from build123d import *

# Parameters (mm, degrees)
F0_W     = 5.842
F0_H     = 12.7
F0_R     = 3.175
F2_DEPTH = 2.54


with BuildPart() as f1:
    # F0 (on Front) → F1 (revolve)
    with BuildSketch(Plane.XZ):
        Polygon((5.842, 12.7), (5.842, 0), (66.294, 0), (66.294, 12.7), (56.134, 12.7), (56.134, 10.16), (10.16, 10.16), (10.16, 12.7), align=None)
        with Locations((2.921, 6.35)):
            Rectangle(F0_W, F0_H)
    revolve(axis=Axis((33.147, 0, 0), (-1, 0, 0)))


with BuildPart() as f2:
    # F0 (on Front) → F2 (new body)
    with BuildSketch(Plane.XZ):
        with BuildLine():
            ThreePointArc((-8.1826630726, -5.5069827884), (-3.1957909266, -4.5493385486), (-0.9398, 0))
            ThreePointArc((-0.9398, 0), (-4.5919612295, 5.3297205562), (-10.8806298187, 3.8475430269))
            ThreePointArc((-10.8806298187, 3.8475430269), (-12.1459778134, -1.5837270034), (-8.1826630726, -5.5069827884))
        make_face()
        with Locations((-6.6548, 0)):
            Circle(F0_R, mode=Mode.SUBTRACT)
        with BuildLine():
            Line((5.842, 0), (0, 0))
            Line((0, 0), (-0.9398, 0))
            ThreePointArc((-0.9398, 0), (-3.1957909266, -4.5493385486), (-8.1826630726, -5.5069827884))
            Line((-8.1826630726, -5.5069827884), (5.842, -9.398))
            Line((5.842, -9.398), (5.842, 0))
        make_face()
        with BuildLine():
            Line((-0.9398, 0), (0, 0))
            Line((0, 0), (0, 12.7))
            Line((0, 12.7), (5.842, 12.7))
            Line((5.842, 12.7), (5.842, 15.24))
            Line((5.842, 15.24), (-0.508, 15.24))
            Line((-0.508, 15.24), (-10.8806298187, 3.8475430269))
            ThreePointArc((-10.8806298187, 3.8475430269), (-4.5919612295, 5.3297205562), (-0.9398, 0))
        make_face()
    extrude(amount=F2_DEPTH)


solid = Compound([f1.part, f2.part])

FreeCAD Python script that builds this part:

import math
import FreeCAD as App
import Part
import Sketcher
from FreeCAD import Vector
Q = App.Units.Quantity

doc = App.newDocument("Part")
body = doc.addObject("PartDesign::Body", "Body")

# Sketch on XZ plane
sketch1 = body.newObject("Sketcher::SketchObject", "Sketch")
sketch1.AttachmentSupport = (doc.getObject("XZ_Plane"), [""])
sketch1.MapMode = "FlatFace"
sketch1.addGeometry(Part.LineSegment(Vector(66.294, 0, 0), Vector(66.294, 12.7, 0)), False)
sketch1.addGeometry(Part.LineSegment(Vector(66.294, 12.7, 0), Vector(56.134, 12.7, 0)), False)
sketch1.addGeometry(Part.LineSegment(Vector(56.134, 12.7, 0), Vector(56.134, 10.16, 0)), False)
sketch1.addGeometry(Part.LineSegment(Vector(56.134, 10.16, 0), Vector(10.16, 10.16, 0)), False)
sketch1.addGeometry(Part.LineSegment(Vector(10.16, 10.16, 0), Vector(10.16, 12.7, 0)), False)
sketch1.addGeometry(Part.LineSegment(Vector(10.16, 12.7, 0), Vector(0, 12.7, 0)), False)
sketch1.addGeometry(Part.LineSegment(Vector(0, 12.7, 0), Vector(0, 0, 0)), False)
sketch1.addGeometry(Part.LineSegment(Vector(0, 0, 0), Vector(66.294, 0, 0)), False)
sketch1.addConstraint(Sketcher.Constraint("Coincident", 0, 2, 1, 1))
sketch1.addConstraint(Sketcher.Constraint("Coincident", 1, 2, 2, 1))
sketch1.addConstraint(Sketcher.Constraint("Coincident", 2, 2, 3, 1))
sketch1.addConstraint(Sketcher.Constraint("Coincident", 3, 2, 4, 1))
sketch1.addConstraint(Sketcher.Constraint("Coincident", 4, 2, 5, 1))
sketch1.addConstraint(Sketcher.Constraint("Coincident", 5, 2, 6, 1))
sketch1.addConstraint(Sketcher.Constraint("Coincident", 6, 2, 7, 1))
sketch1.addConstraint(Sketcher.Constraint("Coincident", 7, 2, 0, 1))
sketch1.addConstraint(Sketcher.Constraint("Vertical", 0))
sketch1.addConstraint(Sketcher.Constraint("Horizontal", 1))
sketch1.addConstraint(Sketcher.Constraint("Vertical", 2))
sketch1.addConstraint(Sketcher.Constraint("Horizontal", 3))
sketch1.addConstraint(Sketcher.Constraint("Vertical", 4))
sketch1.addConstraint(Sketcher.Constraint("Horizontal", 5))
sketch1.addConstraint(Sketcher.Constraint("Vertical", 6))
sketch1.addConstraint(Sketcher.Constraint("Horizontal", 7))
sketch1.addConstraint(Sketcher.Constraint("Coincident", 6, 2, -1, 1))
sketch1.addConstraint(Sketcher.Constraint("Horizontal", 1, 2, 4, 2))
sketch1.addConstraint(Sketcher.Constraint("Equal", 1, 5))
sketch1.addConstraint(Sketcher.Constraint("DistanceX", 1, 2, 1, 1, Q("0.4 in")))
sketch1.addConstraint(Sketcher.Constraint("DistanceY", 0, 1, 0, 2, Q("0.5 in")))
sketch1.addConstraint(Sketcher.Constraint("DistanceY", 2, 2, 2, 1, Q("0.1 in")))
sketch1.addConstraint(Sketcher.Constraint("DistanceX", 3, 2, 3, 1, Q("1.81 in")))
revolution = body.newObject("PartDesign::Revolution", "Revolution")
revolution.Profile = sketch1
revolution.ReferenceAxis = (sketch1, ["H_Axis"])
revolution.Angle = 360
body2 = doc.addObject("PartDesign::Body", "Body001")

# Sketch on XZ plane
sketch2 = body2.newObject("Sketcher::SketchObject", "Sketch001")
sketch2.AttachmentSupport = (doc.getObject("XZ_Plane001"), [""])
sketch2.MapMode = "FlatFace"
sketch2.addGeometry(Part.ArcOfCircle(Part.Circle(Vector(-6.6548, 0, 0), Vector(0, 0, 1), 5.715), math.radians(137.682695), math.radians(254.493802)), False)
sketch2.addGeometry(Part.LineSegment(Vector(-8.182663, -5.506983, 0), Vector(5.842, -9.398, 0)), False)
sketch2.addGeometry(Part.LineSegment(Vector(5.842, -9.398, 0), Vector(5.842, 0, 0)), False)
sketch2.addGeometry(Part.LineSegment(Vector(5.842, 0, 0), Vector(0, 0, 0)), False)
sketch2.addGeometry(Part.LineSegment(Vector(0, 0, 0), Vector(0, 12.7, 0)), False)
sketch2.addGeometry(Part.LineSegment(Vector(0, 12.7, 0), Vector(5.842, 12.7, 0)), False)
sketch2.addGeometry(Part.LineSegment(Vector(5.842, 12.7, 0), Vector(5.842, 15.24, 0)), False)
sketch2.addGeometry(Part.LineSegment(Vector(5.842, 15.24, 0), Vector(-0.508, 15.24, 0)), False)
sketch2.addGeometry(Part.LineSegment(Vector(-0.508, 15.24, 0), Vector(-10.88063, 3.847543, 0)), False)
sketch2.addGeometry(Part.Circle(Vector(-6.6548, 0, 0), Vector(0, 0, 1), 3.175), False)
sketch2.addConstraint(Sketcher.Constraint("Tangent", 0, 2, 1, 1))
sketch2.addConstraint(Sketcher.Constraint("Coincident", 1, 2, 2, 1))
sketch2.addConstraint(Sketcher.Constraint("Coincident", 2, 2, 3, 1))
sketch2.addConstraint(Sketcher.Constraint("Coincident", 3, 2, 4, 1))
sketch2.addConstraint(Sketcher.Constraint("Coincident", 4, 2, 5, 1))
sketch2.addConstraint(Sketcher.Constraint("Coincident", 5, 2, 6, 1))
sketch2.addConstraint(Sketcher.Constraint("Coincident", 6, 2, 7, 1))
sketch2.addConstraint(Sketcher.Constraint("Coincident", 7, 2, 8, 1))
sketch2.addConstraint(Sketcher.Constraint("Tangent", 8, 2, 0, 1))
sketch2.addConstraint(Sketcher.Constraint("Vertical", 2))
sketch2.addConstraint(Sketcher.Constraint("Horizontal", 3))
sketch2.addConstraint(Sketcher.Constraint("Vertical", 4))
sketch2.addConstraint(Sketcher.Constraint("Horizontal", 5))
sketch2.addConstraint(Sketcher.Constraint("Vertical", 6))
sketch2.addConstraint(Sketcher.Constraint("Horizontal", 7))
sketch2.addConstraint(Sketcher.Constraint("Coincident", 3, 2, -1, 1))
sketch2.addConstraint(Sketcher.Constraint("Coincident", 9, 3, 0, 3))
sketch2.addConstraint(Sketcher.Constraint("PointOnObject", 0, 3, -1))
sketch2.addConstraint(Sketcher.Constraint("Vertical", 2, 2, 5, 2))
sketch2.addConstraint(Sketcher.Constraint("Diameter", 9, Q("0.25 in")))
sketch2.addConstraint(Sketcher.Constraint("DistanceY", 4, 1, 4, 2, Q("0.5 in")))
sketch2.addConstraint(Sketcher.Constraint("DistanceY", 6, 1, 6, 2, Q("0.1 in")))
sketch2.addConstraint(Sketcher.Constraint("Radius", 0, Q("0.225 in")))
sketch2.addConstraint(Sketcher.Constraint("DistanceX", 3, 2, 3, 1, Q("0.23 in")))
sketch2.addConstraint(Sketcher.Constraint("DistanceX", 7, 2, 7, 1, Q("0.25 in")))
sketch2.addConstraint(Sketcher.Constraint("DistanceY", 2, 1, 2, 2, Q("0.37 in")))
sketch2.addConstraint(Sketcher.Constraint("DistanceX", 0, 3, -1, 1, Q("0.262 in")))
pad1 = body2.newObject("PartDesign::Pad", "Pad")
pad1.Profile = sketch2
pad1.Length = Q("0.1 in")

doc.recompute()
